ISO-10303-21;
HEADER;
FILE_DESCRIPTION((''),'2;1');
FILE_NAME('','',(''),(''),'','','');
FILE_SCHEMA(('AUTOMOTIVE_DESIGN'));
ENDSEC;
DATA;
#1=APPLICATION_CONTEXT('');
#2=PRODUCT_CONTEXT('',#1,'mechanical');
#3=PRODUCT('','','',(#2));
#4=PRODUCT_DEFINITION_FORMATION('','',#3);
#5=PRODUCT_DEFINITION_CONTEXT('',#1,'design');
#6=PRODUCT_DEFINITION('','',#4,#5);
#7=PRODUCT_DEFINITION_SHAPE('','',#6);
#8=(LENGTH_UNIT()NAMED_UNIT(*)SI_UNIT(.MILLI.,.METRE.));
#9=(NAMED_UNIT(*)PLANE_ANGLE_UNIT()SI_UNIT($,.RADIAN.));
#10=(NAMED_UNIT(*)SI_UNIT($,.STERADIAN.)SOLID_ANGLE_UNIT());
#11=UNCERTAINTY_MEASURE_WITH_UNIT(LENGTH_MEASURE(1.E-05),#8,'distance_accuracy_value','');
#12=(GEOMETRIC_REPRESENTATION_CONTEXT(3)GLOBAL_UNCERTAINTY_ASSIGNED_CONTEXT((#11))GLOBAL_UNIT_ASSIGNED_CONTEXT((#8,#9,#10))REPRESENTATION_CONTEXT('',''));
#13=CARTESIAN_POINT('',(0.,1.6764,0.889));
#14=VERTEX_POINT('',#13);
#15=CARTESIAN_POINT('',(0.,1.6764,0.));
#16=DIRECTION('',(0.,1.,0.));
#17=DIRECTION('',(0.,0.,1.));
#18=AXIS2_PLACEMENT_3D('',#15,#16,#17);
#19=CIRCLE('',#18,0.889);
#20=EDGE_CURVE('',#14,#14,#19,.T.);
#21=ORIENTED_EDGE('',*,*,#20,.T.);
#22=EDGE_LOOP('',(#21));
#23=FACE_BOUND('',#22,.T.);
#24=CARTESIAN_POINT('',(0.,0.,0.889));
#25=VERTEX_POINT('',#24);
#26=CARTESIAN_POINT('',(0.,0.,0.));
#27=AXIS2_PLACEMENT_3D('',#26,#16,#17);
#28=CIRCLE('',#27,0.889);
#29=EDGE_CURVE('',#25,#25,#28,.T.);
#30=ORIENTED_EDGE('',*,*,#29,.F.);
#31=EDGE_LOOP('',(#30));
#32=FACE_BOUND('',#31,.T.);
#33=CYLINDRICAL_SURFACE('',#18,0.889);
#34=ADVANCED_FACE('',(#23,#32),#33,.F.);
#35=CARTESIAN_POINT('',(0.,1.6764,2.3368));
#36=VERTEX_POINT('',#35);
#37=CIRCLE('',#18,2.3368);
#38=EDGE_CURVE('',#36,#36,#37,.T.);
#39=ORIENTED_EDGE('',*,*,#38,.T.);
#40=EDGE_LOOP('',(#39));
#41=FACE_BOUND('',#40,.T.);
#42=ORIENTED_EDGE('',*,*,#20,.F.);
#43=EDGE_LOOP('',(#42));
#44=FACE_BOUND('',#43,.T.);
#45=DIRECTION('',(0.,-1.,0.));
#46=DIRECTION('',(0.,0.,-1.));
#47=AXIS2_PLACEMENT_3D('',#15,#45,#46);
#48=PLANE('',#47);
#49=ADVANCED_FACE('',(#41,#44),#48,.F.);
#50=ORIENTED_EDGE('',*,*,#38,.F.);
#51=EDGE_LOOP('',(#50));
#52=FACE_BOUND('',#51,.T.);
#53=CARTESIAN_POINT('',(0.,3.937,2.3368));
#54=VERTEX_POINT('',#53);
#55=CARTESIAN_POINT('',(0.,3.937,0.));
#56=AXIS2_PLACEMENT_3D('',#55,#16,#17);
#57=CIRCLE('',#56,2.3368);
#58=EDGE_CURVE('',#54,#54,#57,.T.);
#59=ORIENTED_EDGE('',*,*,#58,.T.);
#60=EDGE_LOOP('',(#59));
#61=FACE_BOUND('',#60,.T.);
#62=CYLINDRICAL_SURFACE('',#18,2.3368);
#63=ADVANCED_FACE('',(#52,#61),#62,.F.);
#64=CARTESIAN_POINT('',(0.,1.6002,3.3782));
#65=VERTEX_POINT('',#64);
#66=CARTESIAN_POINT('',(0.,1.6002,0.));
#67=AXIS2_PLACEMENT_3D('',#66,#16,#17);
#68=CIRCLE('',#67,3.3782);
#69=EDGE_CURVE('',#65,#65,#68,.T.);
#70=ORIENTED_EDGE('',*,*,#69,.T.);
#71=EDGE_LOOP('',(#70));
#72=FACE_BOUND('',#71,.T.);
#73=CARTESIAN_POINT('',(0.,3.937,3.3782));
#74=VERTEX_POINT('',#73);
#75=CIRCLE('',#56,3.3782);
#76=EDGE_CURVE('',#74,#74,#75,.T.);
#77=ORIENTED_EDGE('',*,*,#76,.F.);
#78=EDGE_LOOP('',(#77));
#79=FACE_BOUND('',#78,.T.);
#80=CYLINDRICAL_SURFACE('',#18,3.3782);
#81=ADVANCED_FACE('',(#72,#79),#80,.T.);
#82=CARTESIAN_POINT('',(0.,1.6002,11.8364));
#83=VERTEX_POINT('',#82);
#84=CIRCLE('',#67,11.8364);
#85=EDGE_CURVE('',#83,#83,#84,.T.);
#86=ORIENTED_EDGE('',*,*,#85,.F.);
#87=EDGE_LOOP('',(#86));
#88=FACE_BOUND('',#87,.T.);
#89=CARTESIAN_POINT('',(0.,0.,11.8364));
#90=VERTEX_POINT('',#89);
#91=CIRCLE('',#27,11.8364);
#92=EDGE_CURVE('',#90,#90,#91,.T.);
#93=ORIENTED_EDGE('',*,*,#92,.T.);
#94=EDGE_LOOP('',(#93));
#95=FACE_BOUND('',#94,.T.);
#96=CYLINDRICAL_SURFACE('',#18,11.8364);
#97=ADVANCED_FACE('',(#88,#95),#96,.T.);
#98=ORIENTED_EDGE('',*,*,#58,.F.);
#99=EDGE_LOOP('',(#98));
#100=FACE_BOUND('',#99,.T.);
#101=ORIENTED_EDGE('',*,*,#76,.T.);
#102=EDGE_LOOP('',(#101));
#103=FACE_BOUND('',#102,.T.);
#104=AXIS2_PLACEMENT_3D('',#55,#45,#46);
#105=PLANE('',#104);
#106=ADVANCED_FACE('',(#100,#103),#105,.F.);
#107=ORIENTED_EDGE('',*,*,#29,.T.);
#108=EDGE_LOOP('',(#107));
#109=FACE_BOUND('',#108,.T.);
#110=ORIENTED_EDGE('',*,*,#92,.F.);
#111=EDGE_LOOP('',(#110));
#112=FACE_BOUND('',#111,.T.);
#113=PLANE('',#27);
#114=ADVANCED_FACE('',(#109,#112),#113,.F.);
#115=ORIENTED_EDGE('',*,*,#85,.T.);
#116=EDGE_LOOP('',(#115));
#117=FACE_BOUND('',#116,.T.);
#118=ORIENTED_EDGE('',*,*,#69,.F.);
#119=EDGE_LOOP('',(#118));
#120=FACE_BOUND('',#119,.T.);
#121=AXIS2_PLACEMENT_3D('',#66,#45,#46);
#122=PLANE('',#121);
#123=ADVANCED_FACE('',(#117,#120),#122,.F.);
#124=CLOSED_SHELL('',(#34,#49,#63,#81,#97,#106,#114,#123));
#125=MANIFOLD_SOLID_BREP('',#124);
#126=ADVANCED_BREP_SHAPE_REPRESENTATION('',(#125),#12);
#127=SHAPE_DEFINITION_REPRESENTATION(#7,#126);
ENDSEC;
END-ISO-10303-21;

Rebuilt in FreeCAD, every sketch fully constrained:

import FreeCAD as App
import Part
import Sketcher
from FreeCAD import Vector
Q = App.Units.Quantity


def add_polygon(sketch, points):
    """Adds a closed chain of lines whose ends are joined by coincident constraints."""
    first, n = sketch.GeometryCount, len(points)
    for a, b in zip(points, points[1:] + points[:1]):
        sketch.addGeometry(Part.LineSegment(App.Vector(*a, 0), App.Vector(*b, 0)), False)
    for i in range(n):
        sketch.addConstraint(Sketcher.Constraint("Coincident", first + i, 2, first + (i + 1) % n, 1))

doc = App.newDocument("Part")
params = doc.addObject("Spreadsheet::Sheet", "Params")
for row, (alias, value) in enumerate([
    ("sketch1_width", "0.431 in"),
    ("sketch1_width2", "0.333 in"),
    ("sketch1_width3", "0.041 in"),
    ("sketch1_height", "0.066 in"),
    ("sketch1_height2", "0.063 in"),
    ("revolution_angle", "360 deg"),
], start=1):
    params.set(f"A{row}", alias)
    params.set(f"B{row}", "=" + value)
    params.setAlias(f"B{row}", alias)

body = doc.addObject("PartDesign::Body", "Body")

# Sketch on XY plane
sketch1 = body.newObject("Sketcher::SketchObject", "Sketch")
sketch1.AttachmentSupport = (doc.getObject("XY_Plane"), [""])
sketch1.MapMode = "FlatFace"
add_polygon(sketch1, [(0.889, 1.6764), (0.889, 0), (11.8364, 0), (11.8364, 1.6002), (3.3782, 1.6002), (3.3782, 3.937), (2.3368, 3.937), (2.3368, 1.6764)])  # lines 0-7
sketch1.addConstraint(Sketcher.Constraint("Vertical", 0))
sketch1.addConstraint(Sketcher.Constraint("Horizontal", 1))
sketch1.addConstraint(Sketcher.Constraint("Vertical", 2))
sketch1.addConstraint(Sketcher.Constraint("Horizontal", 3))
sketch1.addConstraint(Sketcher.Constraint("Vertical", 4))
sketch1.addConstraint(Sketcher.Constraint("Horizontal", 5))
sketch1.addConstraint(Sketcher.Constraint("Vertical", 6))
sketch1.addConstraint(Sketcher.Constraint("Horizontal", 7))
sketch1.addConstraint(Sketcher.Constraint("PointOnObject", 0, 2, -1))
sketch1.addConstraint(Sketcher.Constraint("DistanceX", 1, 1, 1, 2, Q("0.431 in")))
sketch1.addConstraint(Sketcher.Constraint("DistanceX", 3, 2, 3, 1, Q("0.333 in")))
sketch1.addConstraint(Sketcher.Constraint("DistanceX", 5, 2, 5, 1, Q("0.041 in")))
sketch1.addConstraint(Sketcher.Constraint("DistanceY", 0, 2, 0, 1, Q("0.066 in")))
sketch1.addConstraint(Sketcher.Constraint("DistanceY", 2, 1, 2, 2, Q("0.063 in")))
sketch1.addConstraint(Sketcher.Constraint("DistanceY", 4, 1, 4, 2, Q("0.092 in")))
sketch1.addConstraint(Sketcher.Constraint("DistanceX", -1, 1, 0, 2, Q("0.035 in")))
sketch1.setExpression("Constraints[17]", "Params.sketch1_width")
sketch1.setExpression("Constraints[18]", "Params.sketch1_width2")
sketch1.setExpression("Constraints[19]", "Params.sketch1_width3")
sketch1.setExpression("Constraints[20]", "Params.sketch1_height")
sketch1.setExpression("Constraints[21]", "Params.sketch1_height2")
revolution = body.newObject("PartDesign::Revolution", "Revolution")
revolution.Profile = sketch1
revolution.ReferenceAxis = (sketch1, ["V_Axis"])
revolution.setExpression("Angle", "Params.revolution_angle")

doc.recompute()
